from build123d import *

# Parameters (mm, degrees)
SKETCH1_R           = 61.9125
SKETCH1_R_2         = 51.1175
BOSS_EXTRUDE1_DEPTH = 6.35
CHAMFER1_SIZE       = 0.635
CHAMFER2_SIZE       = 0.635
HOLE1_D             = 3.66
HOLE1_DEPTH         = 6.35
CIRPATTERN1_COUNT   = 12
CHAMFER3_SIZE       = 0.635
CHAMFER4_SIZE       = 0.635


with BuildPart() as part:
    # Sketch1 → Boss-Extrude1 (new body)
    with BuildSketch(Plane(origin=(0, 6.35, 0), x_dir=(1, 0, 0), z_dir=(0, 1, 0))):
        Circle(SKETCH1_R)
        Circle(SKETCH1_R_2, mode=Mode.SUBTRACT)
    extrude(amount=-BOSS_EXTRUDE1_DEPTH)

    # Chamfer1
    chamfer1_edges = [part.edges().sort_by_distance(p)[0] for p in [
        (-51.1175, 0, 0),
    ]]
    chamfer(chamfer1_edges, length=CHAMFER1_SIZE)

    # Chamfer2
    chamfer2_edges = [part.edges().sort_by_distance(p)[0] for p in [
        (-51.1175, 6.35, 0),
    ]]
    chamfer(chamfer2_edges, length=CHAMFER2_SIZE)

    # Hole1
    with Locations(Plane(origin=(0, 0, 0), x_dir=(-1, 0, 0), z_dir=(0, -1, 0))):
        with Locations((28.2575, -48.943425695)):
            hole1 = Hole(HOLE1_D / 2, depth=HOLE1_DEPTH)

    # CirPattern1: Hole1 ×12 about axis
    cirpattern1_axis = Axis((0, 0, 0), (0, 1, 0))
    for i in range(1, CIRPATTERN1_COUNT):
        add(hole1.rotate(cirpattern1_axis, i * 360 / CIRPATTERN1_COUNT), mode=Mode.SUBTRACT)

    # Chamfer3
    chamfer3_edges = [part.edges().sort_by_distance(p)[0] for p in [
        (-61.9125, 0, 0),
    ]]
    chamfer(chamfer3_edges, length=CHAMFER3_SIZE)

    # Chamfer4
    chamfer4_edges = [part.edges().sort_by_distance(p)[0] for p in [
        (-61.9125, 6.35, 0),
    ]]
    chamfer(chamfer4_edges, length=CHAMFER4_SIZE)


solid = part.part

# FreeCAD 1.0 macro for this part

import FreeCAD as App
import Part
import Sketcher
Q = App.Units.Quantity


def edges_at(feature, points):
    """Names of the edges that pass closest to the given points."""
    edges = feature.Shape.Edges
    near = lambda p: min(range(len(edges)), key=lambda i: edges[i].distToShape(Part.Vertex(*p))[0])
    return sorted({f"Edge{near(p) + 1}" for p in points})

doc = App.newDocument("Part")
body = doc.addObject("PartDesign::Body", "Body")

# Sketch on XZ plane
sketch1 = body.newObject("Sketcher::SketchObject", "Sketch")
sketch1.AttachmentSupport = (doc.getObject("XZ_Plane"), [""])
sketch1.MapMode = "FlatFace"
sketch1.AttachmentOffset = App.Placement(App.Vector(0, 0, -0.25 * 25.4), App.Rotation())
sketch1.addGeometry(Part.Circle(App.Vector(0, 0, 0), App.Vector(0, 0, 1), 62), False)
sketch1.addGeometry(Part.Circle(App.Vector(0, 0, 0), App.Vector(0, 0, 1), 51), False)
sketch1.addConstraint(Sketcher.Constraint("Coincident", 0, 3, -1, 1))
sketch1.addConstraint(Sketcher.Constraint("Coincident", 1, 3, -1, 1))
sketch1.addConstraint(Sketcher.Constraint("Diameter", 0, Q("4.875 in")))
sketch1.addConstraint(Sketcher.Constraint("Diameter", 1, Q("4.025 in")))
pad1 = body.newObject("PartDesign::Pad", "Pad")
pad1.Profile = sketch1
pad1.Length = Q("0.25 in")
doc.recompute()

chamfer = body.newObject("PartDesign::Chamfer", "Chamfer")
chamfer.Base = (pad1, edges_at(pad1, [(-51.117, 0, 0)]))
chamfer.Size = Q("0.025 in")
doc.recompute()

chamfer2 = body.newObject("PartDesign::Chamfer", "Chamfer001")
chamfer2.Base = (chamfer, edges_at(chamfer, [(-51.117, 6.35, 0)]))
chamfer2.Size = Q("0.025 in")

# Sketch on XZ plane
sketch2 = body.newObject("Sketcher::SketchObject", "Sketch001")
sketch2.AttachmentSupport = (doc.getObject("XZ_Plane"), [""])
sketch2.MapMode = "FlatFace"
sketch2.addGeometry(Part.Circle(App.Vector(-28.3, 48.9, 0), App.Vector(0, 0, 1), 1.8), False)
sketch2.addConstraint(Sketcher.Constraint("Diameter", 0, 3.66))
sketch2.addConstraint(Sketcher.Constraint("DistanceX", 0, 3, -1, 1, Q("1.1125 in")))
sketch2.addConstraint(Sketcher.Constraint("DistanceY", -1, 1, 0, 3, 48.943426))
doc.recompute()
hole = body.newObject("PartDesign::Hole", "Hole")
hole.Profile = sketch2
hole.ThreadType = "None"
hole.Diameter = 3.66
hole.DepthType = "Dimension"
hole.Depth = Q("0.25 in")
hole.DrillPoint = "Flat"
doc.recompute()

polarpattern = body.newObject("PartDesign::PolarPattern", "PolarPattern")
polarpattern.Originals = [hole]
polarpattern.Axis = (doc.getObject("Y_Axis"), [""])
polarpattern.Angle = 360
polarpattern.Occurrences = 12
body.Tip = polarpattern
doc.recompute()

chamfer3 = body.newObject("PartDesign::Chamfer", "Chamfer002")
chamfer3.Base = (polarpattern, edges_at(polarpattern, [(-61.913, 0, 0)]))
chamfer3.Size = Q("0.025 in")
doc.recompute()

chamfer4 = body.newObject("PartDesign::Chamfer", "Chamfer003")
chamfer4.Base = (chamfer3, edges_at(chamfer3, [(-61.913, 6.35, 0)]))
chamfer4.Size = Q("0.025 in")

doc.recompute()
